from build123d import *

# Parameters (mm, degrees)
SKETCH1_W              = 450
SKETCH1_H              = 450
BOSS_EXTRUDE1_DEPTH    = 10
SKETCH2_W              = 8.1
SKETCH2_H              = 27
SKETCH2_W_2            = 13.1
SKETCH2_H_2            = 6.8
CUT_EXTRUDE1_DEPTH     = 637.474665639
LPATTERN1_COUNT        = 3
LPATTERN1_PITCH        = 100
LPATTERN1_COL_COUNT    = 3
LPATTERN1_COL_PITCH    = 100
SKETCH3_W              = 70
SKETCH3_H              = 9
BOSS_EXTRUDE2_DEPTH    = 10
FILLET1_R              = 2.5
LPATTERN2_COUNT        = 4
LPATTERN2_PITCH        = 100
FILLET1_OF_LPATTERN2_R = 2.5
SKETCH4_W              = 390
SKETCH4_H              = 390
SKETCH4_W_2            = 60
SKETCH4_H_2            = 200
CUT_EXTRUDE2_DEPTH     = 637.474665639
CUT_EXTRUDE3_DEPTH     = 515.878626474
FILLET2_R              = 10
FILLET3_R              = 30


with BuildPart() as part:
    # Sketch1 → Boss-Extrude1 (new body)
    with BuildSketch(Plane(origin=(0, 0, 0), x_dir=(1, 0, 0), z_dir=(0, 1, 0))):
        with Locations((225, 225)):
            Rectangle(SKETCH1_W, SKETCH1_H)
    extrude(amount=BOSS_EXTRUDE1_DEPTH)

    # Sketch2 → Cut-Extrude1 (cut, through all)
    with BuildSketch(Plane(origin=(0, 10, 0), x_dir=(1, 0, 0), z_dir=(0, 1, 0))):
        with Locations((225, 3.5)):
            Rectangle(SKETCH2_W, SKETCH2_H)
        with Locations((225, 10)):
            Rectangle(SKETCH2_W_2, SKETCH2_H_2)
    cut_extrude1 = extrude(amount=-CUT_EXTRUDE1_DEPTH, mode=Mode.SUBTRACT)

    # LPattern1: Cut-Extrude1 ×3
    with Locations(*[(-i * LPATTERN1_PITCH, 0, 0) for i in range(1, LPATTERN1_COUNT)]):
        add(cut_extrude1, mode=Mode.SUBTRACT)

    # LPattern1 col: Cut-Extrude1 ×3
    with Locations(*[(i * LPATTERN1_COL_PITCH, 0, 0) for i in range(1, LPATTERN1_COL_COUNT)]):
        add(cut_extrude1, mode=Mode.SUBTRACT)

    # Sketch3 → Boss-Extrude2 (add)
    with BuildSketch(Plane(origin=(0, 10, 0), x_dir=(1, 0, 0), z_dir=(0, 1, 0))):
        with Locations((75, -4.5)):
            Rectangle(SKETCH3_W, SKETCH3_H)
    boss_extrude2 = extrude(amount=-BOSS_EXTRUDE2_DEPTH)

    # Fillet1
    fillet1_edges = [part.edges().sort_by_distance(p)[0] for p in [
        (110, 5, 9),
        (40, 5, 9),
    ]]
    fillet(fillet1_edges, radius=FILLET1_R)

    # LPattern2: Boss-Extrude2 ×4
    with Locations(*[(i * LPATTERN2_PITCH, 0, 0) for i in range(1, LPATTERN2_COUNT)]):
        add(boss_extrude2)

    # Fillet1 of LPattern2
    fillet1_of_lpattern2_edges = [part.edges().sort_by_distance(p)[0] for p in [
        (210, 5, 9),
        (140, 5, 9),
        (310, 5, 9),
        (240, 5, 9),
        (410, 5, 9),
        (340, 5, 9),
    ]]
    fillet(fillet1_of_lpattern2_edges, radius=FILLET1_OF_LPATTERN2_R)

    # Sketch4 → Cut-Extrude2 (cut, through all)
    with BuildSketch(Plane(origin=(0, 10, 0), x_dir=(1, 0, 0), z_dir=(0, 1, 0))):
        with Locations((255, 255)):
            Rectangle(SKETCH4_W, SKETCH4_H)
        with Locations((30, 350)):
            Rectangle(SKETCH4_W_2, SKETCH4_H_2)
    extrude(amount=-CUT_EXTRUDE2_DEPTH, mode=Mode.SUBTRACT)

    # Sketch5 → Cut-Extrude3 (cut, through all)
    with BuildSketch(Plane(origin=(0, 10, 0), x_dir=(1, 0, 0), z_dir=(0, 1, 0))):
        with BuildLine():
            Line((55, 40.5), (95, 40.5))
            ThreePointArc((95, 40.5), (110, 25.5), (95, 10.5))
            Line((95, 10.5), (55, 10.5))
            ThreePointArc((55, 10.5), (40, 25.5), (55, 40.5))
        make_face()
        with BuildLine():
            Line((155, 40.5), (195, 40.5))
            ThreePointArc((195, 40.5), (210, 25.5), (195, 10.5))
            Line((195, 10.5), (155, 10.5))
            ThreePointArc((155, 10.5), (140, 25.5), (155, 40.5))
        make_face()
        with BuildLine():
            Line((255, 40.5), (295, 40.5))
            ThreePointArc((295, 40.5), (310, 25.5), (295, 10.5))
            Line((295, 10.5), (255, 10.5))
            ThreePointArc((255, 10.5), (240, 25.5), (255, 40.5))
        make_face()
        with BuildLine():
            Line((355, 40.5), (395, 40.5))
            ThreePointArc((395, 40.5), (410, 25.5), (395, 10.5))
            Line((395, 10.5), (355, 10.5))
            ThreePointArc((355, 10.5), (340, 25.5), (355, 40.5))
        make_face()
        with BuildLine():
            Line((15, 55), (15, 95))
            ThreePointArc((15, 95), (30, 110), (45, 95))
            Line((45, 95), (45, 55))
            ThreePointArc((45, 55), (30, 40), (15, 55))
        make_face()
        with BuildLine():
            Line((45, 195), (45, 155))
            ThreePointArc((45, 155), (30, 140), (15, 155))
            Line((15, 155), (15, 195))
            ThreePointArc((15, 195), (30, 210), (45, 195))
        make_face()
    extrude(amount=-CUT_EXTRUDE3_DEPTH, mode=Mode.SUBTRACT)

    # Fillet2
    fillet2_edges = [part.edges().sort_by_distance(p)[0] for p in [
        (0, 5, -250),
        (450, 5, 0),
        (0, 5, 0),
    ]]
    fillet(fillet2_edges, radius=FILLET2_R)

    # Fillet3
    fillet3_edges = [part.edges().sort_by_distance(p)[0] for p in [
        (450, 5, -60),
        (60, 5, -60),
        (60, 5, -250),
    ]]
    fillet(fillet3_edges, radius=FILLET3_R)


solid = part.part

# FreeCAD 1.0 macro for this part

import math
import FreeCAD as App
import Part
import Sketcher


def edges_at(feature, points):
    """Names of the edges that pass closest to the given points."""
    edges = feature.Shape.Edges
    near = lambda p: min(range(len(edges)), key=lambda i: edges[i].distToShape(Part.Vertex(*p))[0])
    return sorted({f"Edge{near(p) + 1}" for p in points})


def add_polygon(sketch, points):
    """Adds a closed chain of lines whose ends are joined by coincident constraints."""
    first, n = sketch.GeometryCount, len(points)
    for a, b in zip(points, points[1:] + points[:1]):
        sketch.addGeometry(Part.LineSegment(App.Vector(*a, 0), App.Vector(*b, 0)), False)
    for i in range(n):
        sketch.addConstraint(Sketcher.Constraint("Coincident", first + i, 2, first + (i + 1) % n, 1))

doc = App.newDocument("Part")
body = doc.addObject("PartDesign::Body", "Body")

sketch1 = doc.addObject("Sketcher::SketchObject", "Sketch")
body.addObject(sketch1)
sketch1.AttachmentSupport = (doc.XZ_Plane, [""])
sketch1.MapMode = "FlatFace"
add_polygon(sketch1, [(0, -450), (0, 0), (450, 0), (450, -450)])
sketch1.addConstraint([
    Sketcher.Constraint("Vertical", 0),
    Sketcher.Constraint("Horizontal", 1),
    Sketcher.Constraint("Vertical", 2),
    Sketcher.Constraint("Horizontal", 3),
    Sketcher.Constraint("Coincident", 0, 2, -1, 1),
    Sketcher.Constraint("Equal", 3, 0),
    Sketcher.Constraint("DistanceX", 1, 1, 1, 2, 450.0),
])
pad1 = doc.addObject("PartDesign::Pad", "Pad")
body.addObject(pad1)
pad1.Profile = sketch1
pad1.Length = 10
pad1.Reversed = True

sketch2 = doc.addObject("Sketcher::SketchObject", "Sketch001")
body.addObject(sketch2)
sketch2.AttachmentSupport = (doc.XZ_Plane, [""])
sketch2.MapMode = "FlatFace"
sketch2.AttachmentOffset = App.Placement(App.Vector(0, 0, -10), App.Rotation())
add_polygon(sketch2, [(220.9, -6.6), (220.9, 10), (229.1, 10), (229.1, -6.6), (231.6, -6.6), (231.6, -13.4), (229.1, -13.4), (229.1, -17), (220.9, -17), (220.9, -13.4), (218.4, -13.4), (218.4, -6.6)])
sketch2.addConstraint([
    Sketcher.Constraint("Vertical", 0),
    Sketcher.Constraint("Horizontal", 1),
    Sketcher.Constraint("Vertical", 2),
    Sketcher.Constraint("Horizontal", 3),
    Sketcher.Constraint("Vertical", 4),
    Sketcher.Constraint("Horizontal", 5),
    Sketcher.Constraint("Vertical", 6),
    Sketcher.Constraint("Horizontal", 7),
    Sketcher.Constraint("Vertical", 8),
    Sketcher.Constraint("Horizontal", 9),
    Sketcher.Constraint("Vertical", 10),
    Sketcher.Constraint("Horizontal", 11),
    Sketcher.Constraint("Horizontal", 5, 2, 8, 2),
    Sketcher.Constraint("Horizontal", 3, 2, 10, 2),
    Sketcher.Constraint("Vertical", 2, 2, 5, 2),
    Sketcher.Constraint("Vertical", 0, 2, 7, 2),
    Sketcher.Constraint("Equal", 5, 9),
    Sketcher.Constraint("DistanceX", 1, 1, 1, 2, 8.1),
    Sketcher.Constraint("DistanceX", 3, 1, 3, 2, 2.5),
    Sketcher.Constraint("DistanceY", 0, 1, 0, 2, 16.6),
    Sketcher.Constraint("DistanceY", 4, 2, 4, 1, 6.8),
    Sketcher.Constraint("DistanceY", 6, 2, 6, 1, 3.6),
    Sketcher.Constraint("DistanceY", -1, 1, 0, 2, 10.0),
    Sketcher.Constraint("DistanceX", -1, 1, 0, 2, 220.95),
])
pocket1 = doc.addObject("PartDesign::Pocket", "Pocket")
body.addObject(pocket1)
pocket1.Profile = sketch2
pocket1.Type = "ThroughAll"
pocket1.Reversed = True
doc.recompute()

linearpattern = doc.addObject("PartDesign::LinearPattern", "LinearPattern")
body.addObject(linearpattern)
linearpattern.Originals = [pocket1]
linearpattern.Direction = (doc.X_Axis, [""])
linearpattern.Mode = "offset"
linearpattern.Offset = 100
linearpattern.Occurrences = 3
linearpattern.Reversed = True
body.Tip = linearpattern
doc.recompute()

linearpattern2 = doc.addObject("PartDesign::LinearPattern", "LinearPattern001")
body.addObject(linearpattern2)
linearpattern2.Originals = [pocket1]
linearpattern2.Direction = (doc.X_Axis, [""])
linearpattern2.Mode = "offset"
linearpattern2.Offset = 100
linearpattern2.Occurrences = 3
body.Tip = linearpattern2

sketch3 = doc.addObject("Sketcher::SketchObject", "Sketch002")
body.addObject(sketch3)
sketch3.AttachmentSupport = (doc.XZ_Plane, [""])
sketch3.MapMode = "FlatFace"
sketch3.AttachmentOffset = App.Placement(App.Vector(0, 0, -10), App.Rotation())
add_polygon(sketch3, [(40, 0), (40, 9), (110, 9), (110, 0)])
sketch3.addConstraint([
    Sketcher.Constraint("Vertical", 0),
    Sketcher.Constraint("Horizontal", 1),
    Sketcher.Constraint("Vertical", 2),
    Sketcher.Constraint("Horizontal", 3),
    Sketcher.Constraint("PointOnObject", 2, 2, -1),
    Sketcher.Constraint("DistanceX", 1, 1, 1, 2, 70.0),
    Sketcher.Constraint("DistanceY", 0, 1, 0, 2, 9.0),
    Sketcher.Constraint("DistanceX", -1, 1, 0, 2, 40.0),
])
pad2 = doc.addObject("PartDesign::Pad", "Pad001")
body.addObject(pad2)
pad2.Profile = sketch3
pad2.Length = 10
doc.recompute()

fillet = doc.addObject("PartDesign::Fillet", "Fillet")
body.addObject(fillet)
fillet.Base = (pad2, edges_at(pad2, [(110, 5, 9), (40, 5, 9)]))
fillet.Radius = 2.5
doc.recompute()

linearpattern3 = doc.addObject("PartDesign::LinearPattern", "LinearPattern002")
body.addObject(linearpattern3)
linearpattern3.Originals = [pad2]
linearpattern3.Direction = (doc.X_Axis, [""])
linearpattern3.Mode = "offset"
linearpattern3.Offset = 100
linearpattern3.Occurrences = 4
body.Tip = linearpattern3
doc.recompute()

fillet2 = doc.addObject("PartDesign::Fillet", "Fillet001")
body.addObject(fillet2)
fillet2.Base = (linearpattern3, edges_at(linearpattern3, [
    (210, 5, 9),
    (140, 5, 9),
    (310, 5, 9),
    (240, 5, 9),
    (410, 5, 9),
    (340, 5, 9),
]))
fillet2.Radius = 2.5

sketch4 = doc.addObject("Sketcher::SketchObject", "Sketch003")
body.addObject(sketch4)
sketch4.AttachmentSupport = (doc.XZ_Plane, [""])
sketch4.MapMode = "FlatFace"
sketch4.AttachmentOffset = App.Placement(App.Vector(0, 0, -10), App.Rotation())
add_polygon(sketch4, [(60, -250), (60, -60), (450, -60), (450, -450), (0, -450), (0, -250)])
sketch4.addConstraint([
    Sketcher.Constraint("Vertical", 0),
    Sketcher.Constraint("Horizontal", 1),
    Sketcher.Constraint("Vertical", 2),
    Sketcher.Constraint("Horizontal", 3),
    Sketcher.Constraint("Vertical", 4),
    Sketcher.Constraint("Horizontal", 5),
    Sketcher.Constraint("PointOnObject", 3, 2, -2),
    Sketcher.Constraint("Equal", 1, 2),
    Sketcher.Constraint("DistanceX", 1, 1, 1, 2, 390.0),
    Sketcher.Constraint("DistanceX", 3, 2, 3, 1, 450.0),
    Sketcher.Constraint("DistanceY", 0, 1, 0, 2, 190.0),
    Sketcher.Constraint("DistanceY", 0, 2, -1, 1, 60.0),
])
pocket2 = doc.addObject("PartDesign::Pocket", "Pocket001")
body.addObject(pocket2)
pocket2.Profile = sketch4
pocket2.Type = "ThroughAll"
pocket2.Reversed = True

sketch5 = doc.addObject("Sketcher::SketchObject", "Sketch004")
body.addObject(sketch5)
sketch5.AttachmentSupport = (doc.XZ_Plane, [""])
sketch5.MapMode = "FlatFace"
sketch5.AttachmentOffset = App.Placement(App.Vector(0, 0, -10), App.Rotation())
sketch5.addGeometry([
    Part.LineSegment(App.Vector(95, -40, 0), App.Vector(55, -40, 0)),
    Part.ArcOfCircle(Part.Circle(App.Vector(55, -26, 0), App.Vector(0, 0, 1), 15), math.radians(90), math.radians(270)),
    Part.LineSegment(App.Vector(55, -10, 0), App.Vector(95, -10, 0)),
    Part.ArcOfCircle(Part.Circle(App.Vector(95, -26, 0), App.Vector(0, 0, 1), 15), math.radians(-90), math.radians(90)),
    Part.LineSegment(App.Vector(195, -40, 0), App.Vector(155, -40, 0)),
    Part.ArcOfCircle(Part.Circle(App.Vector(155, -26, 0), App.Vector(0, 0, 1), 15), math.radians(90), math.radians(270)),
    Part.LineSegment(App.Vector(155, -10, 0), App.Vector(195, -10, 0)),
    Part.ArcOfCircle(Part.Circle(App.Vector(195, -26, 0), App.Vector(0, 0, 1), 15), math.radians(-90), math.radians(90)),
    Part.LineSegment(App.Vector(295, -40, 0), App.Vector(255, -40, 0)),
    Part.ArcOfCircle(Part.Circle(App.Vector(255, -26, 0), App.Vector(0, 0, 1), 15), math.radians(90), math.radians(270)),
    Part.LineSegment(App.Vector(255, -10, 0), App.Vector(295, -10, 0)),
    Part.ArcOfCircle(Part.Circle(App.Vector(295, -26, 0), App.Vector(0, 0, 1), 15), math.radians(-90), math.radians(90)),
    Part.LineSegment(App.Vector(395, -40, 0), App.Vector(355, -40, 0)),
    Part.ArcOfCircle(Part.Circle(App.Vector(355, -26, 0), App.Vector(0, 0, 1), 15), math.radians(90), math.radians(270)),
    Part.LineSegment(App.Vector(355, -10, 0), App.Vector(395, -10, 0)),
    Part.ArcOfCircle(Part.Circle(App.Vector(395, -26, 0), App.Vector(0, 0, 1), 15), math.radians(-90), math.radians(90)),
    Part.LineSegment(App.Vector(15, -95, 0), App.Vector(15, -55, 0)),
    Part.ArcOfCircle(Part.Circle(App.Vector(30, -55, 0), App.Vector(0, 0, 1), 15), math.radians(0), math.radians(180)),
    Part.LineSegment(App.Vector(45, -55, 0), App.Vector(45, -95, 0)),
    Part.ArcOfCircle(Part.Circle(App.Vector(30, -95, 0), App.Vector(0, 0, 1), 15), math.radians(180), math.radians(360)),
    Part.LineSegment(App.Vector(45, -155, 0), App.Vector(45, -195, 0)),
    Part.ArcOfCircle(Part.Circle(App.Vector(30, -195, 0), App.Vector(0, 0, 1), 15), math.radians(180), math.radians(360)),
    Part.LineSegment(App.Vector(15, -195, 0), App.Vector(15, -155, 0)),
    Part.ArcOfCircle(Part.Circle(App.Vector(30, -155, 0), App.Vector(0, 0, 1), 15), math.radians(0), math.radians(180)),
], False)
sketch5.addConstraint([
    Sketcher.Constraint("Tangent", 0, 2, 1, 2),
    Sketcher.Constraint("Tangent", 1, 1, 2, 1),
    Sketcher.Constraint("Tangent", 2, 2, 3, 2),
    Sketcher.Constraint("Tangent", 3, 1, 0, 1),
    Sketcher.Constraint("Tangent", 4, 2, 5, 2),
    Sketcher.Constraint("Tangent", 5, 1, 6, 1),
    Sketcher.Constraint("Tangent", 6, 2, 7, 2),
    Sketcher.Constraint("Tangent", 7, 1, 4, 1),
    Sketcher.Constraint("Tangent", 8, 2, 9, 2),
    Sketcher.Constraint("Tangent", 9, 1, 10, 1),
    Sketcher.Constraint("Tangent", 10, 2, 11, 2),
    Sketcher.Constraint("Tangent", 11, 1, 8, 1),
    Sketcher.Constraint("Tangent", 12, 2, 13, 2),
    Sketcher.Constraint("Tangent", 13, 1, 14, 1),
    Sketcher.Constraint("Tangent", 14, 2, 15, 2),
    Sketcher.Constraint("Tangent", 15, 1, 12, 1),
    Sketcher.Constraint("Tangent", 16, 2, 17, 2),
    Sketcher.Constraint("Tangent", 17, 1, 18, 1),
    Sketcher.Constraint("Tangent", 18, 2, 19, 2),
    Sketcher.Constraint("Tangent", 19, 1, 16, 1),
    Sketcher.Constraint("Tangent", 20, 2, 21, 2),
    Sketcher.Constraint("Tangent", 21, 1, 22, 1),
    Sketcher.Constraint("Tangent", 22, 2, 23, 2),
    Sketcher.Constraint("Tangent", 23, 1, 20, 1),
    Sketcher.Constraint("Horizontal", 0),
    Sketcher.Constraint("Horizontal", 2),
    Sketcher.Constraint("Horizontal", 4),
    Sketcher.Constraint("Horizontal", 6),
    Sketcher.Constraint("Horizontal", 8),
    Sketcher.Constraint("Horizontal", 10),
    Sketcher.Constraint("Horizontal", 12),
    Sketcher.Constraint("Horizontal", 14),
    Sketcher.Constraint("Vertical", 16),
    Sketcher.Constraint("Vertical", 18),
    Sketcher.Constraint("Vertical", 20),
    Sketcher.Constraint("Vertical", 22),
    Sketcher.Constraint("Equal", 3, 5),
    Sketcher.Constraint("Equal", 7, 9),
    Sketcher.Constraint("Equal", 11, 13),
    Sketcher.Constraint("Equal", 15, 17),
    Sketcher.Constraint("Equal", 19, 21),
    Sketcher.Constraint("Horizontal", 3, 3, 5, 3),
    Sketcher.Constraint("Horizontal", 7, 3, 9, 3),
    Sketcher.Constraint("Horizontal", 11, 3, 13, 3),
    Sketcher.Constraint("Vertical", 19, 3, 21, 3),
    Sketcher.Constraint("Equal", 2, 4),
    Sketcher.Constraint("Equal", 6, 8),
    Sketcher.Constraint("Equal", 10, 12),
    Sketcher.Constraint("Equal", 14, 16),
    Sketcher.Constraint("Equal", 18, 20),
    Sketcher.Constraint("Radius", 1, 15.0),
    Sketcher.Constraint("DistanceX", 0, 2, 0, 1, 40.0),
    Sketcher.Constraint("DistanceX", -1, 1, 1, 3, 55.0),
    Sketcher.Constraint("DistanceX", -1, 1, 5, 3, 155.0),
    Sketcher.Constraint("DistanceX", -1, 1, 9, 3, 255.0),
    Sketcher.Constraint("DistanceX", -1, 1, 13, 3, 355.0),
    Sketcher.Constraint("DistanceX", -1, 1, 17, 3, 30.0),
    Sketcher.Constraint("DistanceY", 17, 3, -1, 1, 55.0),
    Sketcher.Constraint("DistanceY", 21, 3, -1, 1, 195.0),
    Sketcher.Constraint("DistanceY", 1, 3, -1, 1, 25.5),
])
pocket3 = doc.addObject("PartDesign::Pocket", "Pocket002")
body.addObject(pocket3)
pocket3.Profile = sketch5
pocket3.Type = "ThroughAll"
pocket3.Reversed = True
doc.recompute()

fillet3 = doc.addObject("PartDesign::Fillet", "Fillet002")
body.addObject(fillet3)
fillet3.Base = (pocket3, edges_at(pocket3, [(0, 5, -250), (450, 5, 0), (0, 5, 0)]))
fillet3.Radius = 10
doc.recompute()

fillet4 = doc.addObject("PartDesign::Fillet", "Fillet003")
body.addObject(fillet4)
fillet4.Base = (fillet3, edges_at(fillet3, [(450, 5, -60), (60, 5, -60), (60, 5, -250)]))
fillet4.Radius = 30

doc.recompute()
